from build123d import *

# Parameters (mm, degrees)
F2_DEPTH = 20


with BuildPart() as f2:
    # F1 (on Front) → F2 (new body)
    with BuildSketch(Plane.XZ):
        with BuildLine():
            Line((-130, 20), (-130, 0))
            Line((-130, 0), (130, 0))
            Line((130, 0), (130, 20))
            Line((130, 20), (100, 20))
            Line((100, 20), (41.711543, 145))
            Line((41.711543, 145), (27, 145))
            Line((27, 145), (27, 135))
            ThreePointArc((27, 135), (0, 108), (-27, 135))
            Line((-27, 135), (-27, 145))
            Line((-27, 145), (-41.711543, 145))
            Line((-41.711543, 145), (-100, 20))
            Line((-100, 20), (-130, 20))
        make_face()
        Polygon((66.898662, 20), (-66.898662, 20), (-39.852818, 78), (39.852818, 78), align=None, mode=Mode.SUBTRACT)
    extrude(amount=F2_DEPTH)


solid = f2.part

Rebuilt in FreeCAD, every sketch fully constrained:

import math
import FreeCAD as App
import Part
import Sketcher

V = App.Vector
Q = App.Units.Quantity

doc = App.newDocument("Part")
body = doc.addObject("PartDesign::Body", "Body")

# Sketch on XZ plane
sketch1 = doc.addObject("Sketcher::SketchObject", "Sketch")
body.addObject(sketch1)
sketch1.AttachmentSupport = (doc.XZ_Plane, [""])
sketch1.MapMode = "FlatFace"
sketch1.addGeometry([
    Part.LineSegment(V(-130, 20, 0), V(-130, 0, 0)),  # 0
    Part.LineSegment(V(-130, 0, 0), V(130, 0, 0)),  # 1
    Part.LineSegment(V(130, 0, 0), V(130, 20, 0)),  # 2
    Part.LineSegment(V(130, 20, 0), V(100, 20, 0)),  # 3
    Part.LineSegment(V(100, 20, 0), V(41.711543, 145, 0)),  # 4
    Part.LineSegment(V(41.711543, 145, 0), V(27, 145, 0)),  # 5
    Part.LineSegment(V(27, 145, 0), V(27, 135, 0)),  # 6
    Part.ArcOfCircle(Part.Circle(V(0, 135, 0), V(0, 0, 1), 27), math.radians(180), math.radians(360)),  # 7
    Part.LineSegment(V(-27, 135, 0), V(-27, 145, 0)),  # 8
    Part.LineSegment(V(-27, 145, 0), V(-41.711543, 145, 0)),  # 9
    Part.LineSegment(V(-41.711543, 145, 0), V(-100, 20, 0)),  # 10
    Part.LineSegment(V(-100, 20, 0), V(-130, 20, 0)),  # 11
    Part.LineSegment(V(39.852818, 78, 0), V(66.898662, 20, 0)),  # 12
    Part.LineSegment(V(66.898662, 20, 0), V(-66.898662, 20, 0)),  # 13
    Part.LineSegment(V(-66.898662, 20, 0), V(-39.852818, 78, 0)),  # 14
    Part.LineSegment(V(-39.852818, 78, 0), V(39.852818, 78, 0)),  # 15
], False)
sketch1.addConstraint([
    Sketcher.Constraint("Coincident", 0, 2, 1, 1),
    Sketcher.Constraint("Coincident", 1, 2, 2, 1),
    Sketcher.Constraint("Coincident", 2, 2, 3, 1),
    Sketcher.Constraint("Coincident", 3, 2, 4, 1),
    Sketcher.Constraint("Coincident", 4, 2, 5, 1),
    Sketcher.Constraint("Coincident", 5, 2, 6, 1),
    Sketcher.Constraint("Tangent", 6, 2, 7, 2),
    Sketcher.Constraint("Tangent", 7, 1, 8, 1),
    Sketcher.Constraint("Coincident", 8, 2, 9, 1),
    Sketcher.Constraint("Coincident", 9, 2, 10, 1),
    Sketcher.Constraint("Coincident", 10, 2, 11, 1),
    Sketcher.Constraint("Coincident", 11, 2, 0, 1),
    Sketcher.Constraint("Coincident", 12, 2, 13, 1),
    Sketcher.Constraint("Coincident", 13, 2, 14, 1),
    Sketcher.Constraint("Coincident", 14, 2, 15, 1),
    Sketcher.Constraint("Coincident", 15, 2, 12, 1),
    Sketcher.Constraint("Vertical", 0),
    Sketcher.Constraint("Horizontal", 1),
    Sketcher.Constraint("Vertical", 2),
    Sketcher.Constraint("Horizontal", 3),
    Sketcher.Constraint("Horizontal", 5),
    Sketcher.Constraint("Vertical", 6),
    Sketcher.Constraint("Vertical", 8),
    Sketcher.Constraint("Horizontal", 9),
    Sketcher.Constraint("Horizontal", 11),
    Sketcher.Constraint("Horizontal", 13),
    Sketcher.Constraint("Horizontal", 15),
    Sketcher.Constraint("Symmetric", 0, 2, 1, 2, -1, 1),
    Sketcher.Constraint("Symmetric", 5, 2, 8, 2, -2),
    Sketcher.Constraint("Symmetric", 3, 2, 10, 2, -2),
    Sketcher.Constraint("Parallel", 4, 12),
    Sketcher.Constraint("Parallel", 10, 14),
    Sketcher.Constraint("Horizontal", 11, 2, 12, 2),
    Sketcher.Constraint("Equal", 5, 9),
    Sketcher.Constraint("Radius", 7, Q("27 mm")),
    Sketcher.Constraint("DistanceX", 1, 1, 1, 2, Q("260 mm")),
    Sketcher.Constraint("DistanceX", 3, 2, 3, 1, Q("30 mm")),
    Sketcher.Constraint("DistanceY", 0, 2, 0, 1, Q("20 mm")),
    Sketcher.Constraint("DistanceY", 6, 2, 6, 1, Q("10 mm")),
    Sketcher.Constraint("Angle", 4, Q("115 deg")),
    Sketcher.Constraint("DistanceY", -1, 1, 7, 3, Q("135 mm")),
    Sketcher.Constraint("DistanceY", -1, 1, 14, 2, Q("78 mm")),
    Sketcher.Constraint("DistanceX", 13, 2, 13, 1, Q("133.797324 mm")),
    Sketcher.Constraint("DistanceX", -1, 1, 12, 2, Q("66.898662 mm")),
])
pad1 = doc.addObject("PartDesign::Pad", "Pad")
body.addObject(pad1)
pad1.Profile = sketch1
pad1.Length = 20

doc.recompute()
